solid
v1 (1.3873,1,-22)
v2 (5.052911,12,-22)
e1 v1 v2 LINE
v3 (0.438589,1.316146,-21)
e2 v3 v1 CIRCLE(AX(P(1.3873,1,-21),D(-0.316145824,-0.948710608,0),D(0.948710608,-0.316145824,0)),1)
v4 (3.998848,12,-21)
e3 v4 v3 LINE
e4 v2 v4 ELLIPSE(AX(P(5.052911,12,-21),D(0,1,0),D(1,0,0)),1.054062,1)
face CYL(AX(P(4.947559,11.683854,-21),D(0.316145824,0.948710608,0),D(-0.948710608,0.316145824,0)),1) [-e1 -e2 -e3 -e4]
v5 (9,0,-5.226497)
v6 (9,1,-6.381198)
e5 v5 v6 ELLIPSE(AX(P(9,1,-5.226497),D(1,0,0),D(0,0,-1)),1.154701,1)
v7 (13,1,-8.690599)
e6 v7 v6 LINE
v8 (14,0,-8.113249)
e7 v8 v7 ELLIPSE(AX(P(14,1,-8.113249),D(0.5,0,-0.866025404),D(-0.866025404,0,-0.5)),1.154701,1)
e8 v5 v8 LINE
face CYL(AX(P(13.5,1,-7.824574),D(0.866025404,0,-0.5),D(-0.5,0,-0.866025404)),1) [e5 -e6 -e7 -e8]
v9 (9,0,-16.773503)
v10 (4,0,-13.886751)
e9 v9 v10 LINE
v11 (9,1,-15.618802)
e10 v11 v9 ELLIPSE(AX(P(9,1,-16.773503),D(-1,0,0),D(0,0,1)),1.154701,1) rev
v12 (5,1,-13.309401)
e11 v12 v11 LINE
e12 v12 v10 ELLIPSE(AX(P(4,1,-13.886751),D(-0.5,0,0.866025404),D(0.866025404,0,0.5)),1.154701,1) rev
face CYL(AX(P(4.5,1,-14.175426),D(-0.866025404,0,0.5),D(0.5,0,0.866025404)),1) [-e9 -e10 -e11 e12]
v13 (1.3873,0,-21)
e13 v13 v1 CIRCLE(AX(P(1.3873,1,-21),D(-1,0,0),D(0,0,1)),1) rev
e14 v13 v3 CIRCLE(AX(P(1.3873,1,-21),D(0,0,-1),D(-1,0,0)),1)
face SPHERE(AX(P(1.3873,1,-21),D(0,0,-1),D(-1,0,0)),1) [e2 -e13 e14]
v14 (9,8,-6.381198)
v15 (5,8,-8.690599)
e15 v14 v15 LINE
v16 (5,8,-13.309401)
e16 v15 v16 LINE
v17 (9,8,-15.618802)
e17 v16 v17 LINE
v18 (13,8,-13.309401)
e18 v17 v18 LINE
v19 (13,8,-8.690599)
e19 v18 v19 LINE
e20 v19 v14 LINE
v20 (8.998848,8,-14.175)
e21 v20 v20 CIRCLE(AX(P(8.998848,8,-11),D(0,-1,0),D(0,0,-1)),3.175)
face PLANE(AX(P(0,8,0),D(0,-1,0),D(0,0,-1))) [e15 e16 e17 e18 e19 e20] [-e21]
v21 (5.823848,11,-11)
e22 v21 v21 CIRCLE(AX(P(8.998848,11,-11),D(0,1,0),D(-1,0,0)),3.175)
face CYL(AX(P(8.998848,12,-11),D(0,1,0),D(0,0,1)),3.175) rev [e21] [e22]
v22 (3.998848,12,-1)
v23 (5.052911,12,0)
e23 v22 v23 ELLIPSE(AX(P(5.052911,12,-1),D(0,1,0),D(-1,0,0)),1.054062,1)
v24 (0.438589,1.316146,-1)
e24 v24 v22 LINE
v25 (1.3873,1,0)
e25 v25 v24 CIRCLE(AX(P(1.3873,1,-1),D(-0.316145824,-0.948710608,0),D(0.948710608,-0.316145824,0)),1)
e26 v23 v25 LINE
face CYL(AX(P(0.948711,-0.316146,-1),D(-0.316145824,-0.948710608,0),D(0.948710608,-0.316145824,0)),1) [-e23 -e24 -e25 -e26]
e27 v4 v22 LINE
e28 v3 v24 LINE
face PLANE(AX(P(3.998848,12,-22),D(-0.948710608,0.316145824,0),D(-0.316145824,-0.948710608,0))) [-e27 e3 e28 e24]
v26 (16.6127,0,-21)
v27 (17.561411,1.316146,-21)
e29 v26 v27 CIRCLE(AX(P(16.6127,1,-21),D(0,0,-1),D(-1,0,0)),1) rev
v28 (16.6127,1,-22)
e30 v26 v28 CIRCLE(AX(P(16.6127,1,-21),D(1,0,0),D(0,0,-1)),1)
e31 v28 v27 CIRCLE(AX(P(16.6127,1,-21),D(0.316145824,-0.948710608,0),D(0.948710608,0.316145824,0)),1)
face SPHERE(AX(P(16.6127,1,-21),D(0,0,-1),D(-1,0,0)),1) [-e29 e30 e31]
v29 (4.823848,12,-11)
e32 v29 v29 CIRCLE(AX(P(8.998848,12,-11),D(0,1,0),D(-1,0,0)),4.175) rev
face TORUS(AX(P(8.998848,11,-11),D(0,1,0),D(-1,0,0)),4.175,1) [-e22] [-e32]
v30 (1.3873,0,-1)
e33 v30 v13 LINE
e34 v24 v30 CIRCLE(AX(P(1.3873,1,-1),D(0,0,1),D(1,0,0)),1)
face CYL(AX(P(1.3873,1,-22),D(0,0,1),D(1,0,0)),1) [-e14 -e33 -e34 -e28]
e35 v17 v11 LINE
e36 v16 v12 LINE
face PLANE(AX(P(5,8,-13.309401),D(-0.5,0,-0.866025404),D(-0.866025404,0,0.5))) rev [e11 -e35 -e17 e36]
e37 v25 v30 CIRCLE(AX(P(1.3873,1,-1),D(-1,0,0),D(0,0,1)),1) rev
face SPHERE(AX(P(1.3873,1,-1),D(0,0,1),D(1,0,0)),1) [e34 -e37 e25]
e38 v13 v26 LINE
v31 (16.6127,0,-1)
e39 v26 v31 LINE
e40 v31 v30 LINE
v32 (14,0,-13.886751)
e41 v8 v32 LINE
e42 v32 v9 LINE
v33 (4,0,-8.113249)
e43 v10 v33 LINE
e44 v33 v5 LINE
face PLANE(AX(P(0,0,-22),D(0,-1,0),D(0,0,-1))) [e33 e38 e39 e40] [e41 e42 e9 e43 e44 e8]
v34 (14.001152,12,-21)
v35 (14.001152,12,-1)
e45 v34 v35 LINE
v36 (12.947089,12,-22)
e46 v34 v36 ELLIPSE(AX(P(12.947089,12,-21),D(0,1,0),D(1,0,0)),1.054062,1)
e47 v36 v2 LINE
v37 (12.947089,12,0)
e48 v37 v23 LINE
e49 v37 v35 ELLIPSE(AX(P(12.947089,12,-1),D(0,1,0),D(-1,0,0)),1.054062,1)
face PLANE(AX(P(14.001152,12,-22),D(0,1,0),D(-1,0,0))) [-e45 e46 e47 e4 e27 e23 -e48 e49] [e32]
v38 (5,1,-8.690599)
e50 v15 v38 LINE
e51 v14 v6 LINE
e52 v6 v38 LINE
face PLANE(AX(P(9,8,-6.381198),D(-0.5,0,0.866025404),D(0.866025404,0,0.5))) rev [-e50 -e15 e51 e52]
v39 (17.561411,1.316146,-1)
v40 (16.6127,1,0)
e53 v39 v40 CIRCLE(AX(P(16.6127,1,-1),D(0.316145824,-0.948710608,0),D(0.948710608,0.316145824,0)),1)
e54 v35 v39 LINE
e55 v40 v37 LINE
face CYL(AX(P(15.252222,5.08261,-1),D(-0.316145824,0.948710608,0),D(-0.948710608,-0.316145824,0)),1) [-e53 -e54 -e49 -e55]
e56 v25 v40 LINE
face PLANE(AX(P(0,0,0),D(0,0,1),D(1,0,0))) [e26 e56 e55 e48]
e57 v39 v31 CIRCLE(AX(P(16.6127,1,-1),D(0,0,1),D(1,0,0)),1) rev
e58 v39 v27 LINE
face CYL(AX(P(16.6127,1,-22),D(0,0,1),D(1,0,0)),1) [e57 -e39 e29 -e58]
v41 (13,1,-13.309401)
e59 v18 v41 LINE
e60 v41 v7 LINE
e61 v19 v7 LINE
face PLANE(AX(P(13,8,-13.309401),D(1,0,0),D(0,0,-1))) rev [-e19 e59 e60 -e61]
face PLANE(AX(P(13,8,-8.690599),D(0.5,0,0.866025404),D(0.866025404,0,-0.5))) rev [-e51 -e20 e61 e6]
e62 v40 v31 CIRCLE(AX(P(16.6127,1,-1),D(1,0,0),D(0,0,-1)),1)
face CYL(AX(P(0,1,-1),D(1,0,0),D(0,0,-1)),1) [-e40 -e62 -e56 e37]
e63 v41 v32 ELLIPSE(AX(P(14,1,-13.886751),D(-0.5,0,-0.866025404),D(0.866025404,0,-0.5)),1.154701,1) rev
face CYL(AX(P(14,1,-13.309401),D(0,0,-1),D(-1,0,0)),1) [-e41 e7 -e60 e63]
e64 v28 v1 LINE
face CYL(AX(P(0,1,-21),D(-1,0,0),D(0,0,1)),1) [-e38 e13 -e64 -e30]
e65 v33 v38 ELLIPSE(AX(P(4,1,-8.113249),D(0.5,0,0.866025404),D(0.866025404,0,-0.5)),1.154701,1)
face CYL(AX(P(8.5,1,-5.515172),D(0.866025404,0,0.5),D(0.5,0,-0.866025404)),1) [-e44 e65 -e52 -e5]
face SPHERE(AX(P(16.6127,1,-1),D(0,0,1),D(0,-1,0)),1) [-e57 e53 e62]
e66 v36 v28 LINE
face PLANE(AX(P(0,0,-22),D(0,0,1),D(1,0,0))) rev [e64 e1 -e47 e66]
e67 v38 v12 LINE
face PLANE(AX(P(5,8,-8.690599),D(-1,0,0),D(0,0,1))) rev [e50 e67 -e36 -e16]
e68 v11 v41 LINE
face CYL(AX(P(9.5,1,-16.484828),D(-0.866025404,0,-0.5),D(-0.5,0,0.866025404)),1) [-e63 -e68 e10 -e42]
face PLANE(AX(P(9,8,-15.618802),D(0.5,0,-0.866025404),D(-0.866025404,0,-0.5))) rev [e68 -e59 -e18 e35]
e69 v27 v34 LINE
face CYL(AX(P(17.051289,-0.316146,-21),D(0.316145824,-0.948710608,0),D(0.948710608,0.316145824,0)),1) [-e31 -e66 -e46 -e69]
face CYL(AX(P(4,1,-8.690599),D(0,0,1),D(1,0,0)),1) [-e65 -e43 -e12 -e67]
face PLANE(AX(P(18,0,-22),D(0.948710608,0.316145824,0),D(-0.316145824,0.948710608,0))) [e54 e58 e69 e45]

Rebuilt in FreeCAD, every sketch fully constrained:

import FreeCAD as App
import Part
import Sketcher
from FreeCAD import Vector
Q = App.Units.Quantity


def edges_at(feature, points):
    """Names of the edges that pass closest to the given points."""
    edges = feature.Shape.Edges
    near = lambda p: min(range(len(edges)), key=lambda i: edges[i].distToShape(Part.Vertex(*p))[0])
    return sorted({f"Edge{near(p) + 1}" for p in points})


def add_polygon(sketch, points):
    """Adds a closed chain of lines whose ends are joined by coincident constraints."""
    first, n = sketch.GeometryCount, len(points)
    for a, b in zip(points, points[1:] + points[:1]):
        sketch.addGeometry(Part.LineSegment(App.Vector(*a, 0), App.Vector(*b, 0)), False)
    for i in range(n):
        sketch.addConstraint(Sketcher.Constraint("Coincident", first + i, 2, first + (i + 1) % n, 1))

doc = App.newDocument("Part")
params = doc.addObject("Spreadsheet::Sheet", "Params")
for row, (alias, value) in enumerate([
    ("sketch1_width", "18 mm"),
    ("pad1_length", "22 mm"),
    ("pocket1_length", "8 mm"),
    ("sketch3_diameter", "6.35 mm"),
    ("hole_diameter", "6.35 mm"),
    ("fillet_radius", "1 mm"),
], start=1):
    params.set(f"A{row}", alias)
    params.set(f"B{row}", "=" + value)
    params.setAlias(f"B{row}", alias)

body = doc.addObject("PartDesign::Body", "Body")

sketch1 = body.newObject("Sketcher::SketchObject", "Sketch")
sketch1.AttachmentSupport = (doc.getObject("XY_Plane"), [""])
sketch1.MapMode = "FlatFace"
add_polygon(sketch1, [(0, 0), (18, 0), (14, 12), (4, 12)])
sketch1.addConstraint(Sketcher.Constraint("Horizontal", 0))
sketch1.addConstraint(Sketcher.Constraint("Horizontal", 2))
sketch1.addConstraint(Sketcher.Constraint("Coincident", 3, 2, -1, 1))
sketch1.addConstraint(Sketcher.Constraint("Equal", 1, 3))
sketch1.addConstraint(Sketcher.Constraint("DistanceX", 0, 1, 0, 2, Q("18 mm")))
sketch1.addConstraint(Sketcher.Constraint("DistanceY", -1, 1, 1, 2, Q("12 mm")))
sketch1.addConstraint(Sketcher.Constraint("Angle", 1, Q("108.43 deg")))
sketch1.setExpression("Constraints[8]", "Params.sketch1_width")
pad1 = body.newObject("PartDesign::Pad", "Pad")
pad1.Profile = sketch1
pad1.setExpression("Length", "Params.pad1_length")
pad1.Reversed = True

sketch2 = body.newObject("Sketcher::SketchObject", "Sketch001")
sketch2.AttachmentSupport = (doc.getObject("XZ_Plane"), [""])
sketch2.MapMode = "FlatFace"
add_polygon(sketch2, [(13, -13.3), (13, -8.7), (9, -6.4), (5, -8.7), (5, -13.3), (9, -15.6)])
sketch2.addConstraint(Sketcher.Constraint("Vertical", 0))
sketch2.addConstraint(Sketcher.Constraint("Vertical", 3))
sketch2.addConstraint(Sketcher.Constraint("Parallel", 1, 4))
sketch2.addConstraint(Sketcher.Constraint("Parallel", 2, 5))
sketch2.addConstraint(Sketcher.Constraint("Horizontal", 0, 2, 2, 2))
sketch2.addConstraint(Sketcher.Constraint("Horizontal", 3, 2, 5, 2))
sketch2.addConstraint(Sketcher.Constraint("Vertical", 1, 2, 4, 2))
sketch2.addConstraint(Sketcher.Constraint("Angle", 1, Q("150 deg")))
sketch2.addConstraint(Sketcher.Constraint("DistanceX", -1, 1, 0, 2, Q("13 mm")))
sketch2.addConstraint(Sketcher.Constraint("DistanceX", -1, 1, 1, 2, Q("9 mm")))
sketch2.addConstraint(Sketcher.Constraint("DistanceY", 0, 2, -1, 1, Q("8.690599 mm")))
sketch2.addConstraint(Sketcher.Constraint("DistanceY", 3, 2, -1, 1, Q("13.309401 mm")))
pocket1 = body.newObject("PartDesign::Pocket", "Pocket")
pocket1.Profile = sketch2
pocket1.setExpression("Length", "Params.pocket1_length")

sketch3 = body.newObject("Sketcher::SketchObject", "Sketch002")
sketch3.AttachmentSupport = (doc.getObject("XZ_Plane"), [""])
sketch3.MapMode = "FlatFace"
sketch3.AttachmentOffset = App.Placement(Vector(0, 0, -12), App.Rotation())
sketch3.addGeometry(Part.Circle(Vector(9, -11, 0), Vector(0, 0, 1), 3.2), False)
sketch3.addConstraint(Sketcher.Constraint("Diameter", 0, Q("6.35 mm")))
sketch3.addConstraint(Sketcher.Constraint("DistanceY", 0, 3, -1, 1, Q("11 mm")))
sketch3.addConstraint(Sketcher.Constraint("DistanceX", -1, 1, 0, 3, Q("8.998848 mm")))
sketch3.setExpression("Constraints[0]", "Params.sketch3_diameter")
doc.recompute()
hole = body.newObject("PartDesign::Hole", "Hole")
hole.Profile = sketch3
hole.ThreadType = "None"
hole.setExpression("Diameter", "Params.hole_diameter")
hole.DepthType = "ThroughAll"
hole.Reversed = True
doc.recompute()

fillet = body.newObject("PartDesign::Fillet", "Fillet")
fillet.Base = (hole, edges_at(hole, [
    (16.001, 6, -22),
    (11, 0, -14.464),
    (13, 0, -11),
    (11, 0, -7.536),
    (7, 0, -7.536),
    (5, 0, -11),
    (7, 0, -14.464),
    (12.174, 12, -11),
    (1.999, 6, -22),
    (16.001, 6, 0),
    (9, 0, 0),
    (1.999, 6, 0),
    (18, 0, -11),
    (0, 0, -11),
    (9, 0, -22),
]))
fillet.setExpression("Radius", "Params.fillet_radius")

doc.recompute()
